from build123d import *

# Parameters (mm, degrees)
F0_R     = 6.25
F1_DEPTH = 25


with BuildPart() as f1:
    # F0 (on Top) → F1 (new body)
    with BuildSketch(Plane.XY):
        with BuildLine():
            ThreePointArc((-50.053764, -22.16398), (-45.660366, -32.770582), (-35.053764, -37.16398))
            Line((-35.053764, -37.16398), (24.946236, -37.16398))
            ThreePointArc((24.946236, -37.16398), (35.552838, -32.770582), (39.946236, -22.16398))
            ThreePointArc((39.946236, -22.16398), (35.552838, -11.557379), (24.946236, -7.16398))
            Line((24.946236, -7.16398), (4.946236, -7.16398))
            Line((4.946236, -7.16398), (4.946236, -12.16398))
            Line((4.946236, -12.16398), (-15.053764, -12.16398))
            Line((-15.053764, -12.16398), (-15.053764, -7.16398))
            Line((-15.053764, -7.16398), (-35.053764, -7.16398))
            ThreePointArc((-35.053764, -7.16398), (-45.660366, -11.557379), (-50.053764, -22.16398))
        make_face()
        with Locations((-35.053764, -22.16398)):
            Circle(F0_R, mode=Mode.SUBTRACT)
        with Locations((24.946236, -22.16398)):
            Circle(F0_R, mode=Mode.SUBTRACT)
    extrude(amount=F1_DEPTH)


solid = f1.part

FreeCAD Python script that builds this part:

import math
import FreeCAD as App
import Part
import Sketcher
from FreeCAD import Vector

doc = App.newDocument("Part")
body = doc.addObject("PartDesign::Body", "Body")

sketch1 = doc.addObject("Sketcher::SketchObject", "Sketch")
body.addObject(sketch1)
sketch1.AttachmentSupport = (doc.XY_Plane, [""])
sketch1.MapMode = "FlatFace"
sketch1.addGeometry([
    Part.ArcOfCircle(Part.Circle(Vector(-35.053765, -22.163981, 0), Vector(0, 0, 1), 14.999999), math.radians(179.999996), math.radians(270.000004)),
    Part.LineSegment(Vector(-35.053764, -37.16398, 0), Vector(24.946236, -37.16398, 0)),
    Part.ArcOfCircle(Part.Circle(Vector(24.946237, -22.163981, 0), Vector(0, 0, 1), 14.999999), math.radians(-90.000004), math.radians(0.000004)),
    Part.ArcOfCircle(Part.Circle(Vector(24.946235, -22.163981, 0), Vector(0, 0, 1), 15.000001), math.radians(0.000003), math.radians(89.999997)),
    Part.LineSegment(Vector(24.946236, -7.16398, 0), Vector(4.946236, -7.16398, 0)),
    Part.LineSegment(Vector(4.946236, -7.16398, 0), Vector(4.946236, -12.16398, 0)),
    Part.LineSegment(Vector(4.946236, -12.16398, 0), Vector(-15.053764, -12.16398, 0)),
    Part.LineSegment(Vector(-15.053764, -12.16398, 0), Vector(-15.053764, -7.16398, 0)),
    Part.LineSegment(Vector(-15.053764, -7.16398, 0), Vector(-35.053764, -7.16398, 0)),
    Part.ArcOfCircle(Part.Circle(Vector(-35.053763, -22.163981, 0), Vector(0, 0, 1), 15.000001), math.radians(90.000003), math.radians(179.999997)),
    Part.Circle(Vector(-35.053764, -22.16398, 0), Vector(0, 0, 1), 6.25),
    Part.Circle(Vector(24.946236, -22.16398, 0), Vector(0, 0, 1), 6.25),
], False)
sketch1.addConstraint([
    Sketcher.Constraint("Tangent", 0, 2, 1, 1),
    Sketcher.Constraint("Tangent", 1, 2, 2, 1),
    Sketcher.Constraint("Tangent", 2, 2, 3, 1),
    Sketcher.Constraint("Tangent", 3, 2, 4, 1),
    Sketcher.Constraint("Coincident", 4, 2, 5, 1),
    Sketcher.Constraint("Coincident", 5, 2, 6, 1),
    Sketcher.Constraint("Coincident", 6, 2, 7, 1),
    Sketcher.Constraint("Coincident", 7, 2, 8, 1),
    Sketcher.Constraint("Tangent", 8, 2, 9, 1),
    Sketcher.Constraint("Tangent", 9, 2, 0, 1),
    Sketcher.Constraint("Horizontal", 1),
    Sketcher.Constraint("Horizontal", 4),
    Sketcher.Constraint("Vertical", 5),
    Sketcher.Constraint("Horizontal", 6),
    Sketcher.Constraint("Vertical", 7),
    Sketcher.Constraint("Horizontal", 8),
    Sketcher.Constraint("Coincident", 10, 3, 0, 3),
    Sketcher.Constraint("Coincident", 11, 3, 2, 3),
    Sketcher.Constraint("Equal", 0, 2),
    Sketcher.Constraint("Equal", 2, 3),
    Sketcher.Constraint("Equal", 3, 9),
    Sketcher.Constraint("Equal", 10, 11),
    Sketcher.Constraint("Horizontal", 11, 3, 2, 2),
    Sketcher.Constraint("Horizontal", 2, 2, 9, 2),
    Sketcher.Constraint("Equal", 4, 6),
    Sketcher.Constraint("Equal", 6, 8),
    Sketcher.Constraint("Radius", 0, 14.999999),
    Sketcher.Constraint("Diameter", 10, 12.5),
    Sketcher.Constraint("DistanceX", 1, 1, 1, 2, 60.0),
    Sketcher.Constraint("DistanceY", 5, 2, 5, 1, 5.0),
    Sketcher.Constraint("DistanceY", 0, 3, -1, 1, 22.163981),
    Sketcher.Constraint("DistanceX", 0, 3, -1, 1, 35.053765),
])
pad1 = doc.addObject("PartDesign::Pad", "Pad")
body.addObject(pad1)
pad1.Profile = sketch1
pad1.Length = 25

doc.recompute()
